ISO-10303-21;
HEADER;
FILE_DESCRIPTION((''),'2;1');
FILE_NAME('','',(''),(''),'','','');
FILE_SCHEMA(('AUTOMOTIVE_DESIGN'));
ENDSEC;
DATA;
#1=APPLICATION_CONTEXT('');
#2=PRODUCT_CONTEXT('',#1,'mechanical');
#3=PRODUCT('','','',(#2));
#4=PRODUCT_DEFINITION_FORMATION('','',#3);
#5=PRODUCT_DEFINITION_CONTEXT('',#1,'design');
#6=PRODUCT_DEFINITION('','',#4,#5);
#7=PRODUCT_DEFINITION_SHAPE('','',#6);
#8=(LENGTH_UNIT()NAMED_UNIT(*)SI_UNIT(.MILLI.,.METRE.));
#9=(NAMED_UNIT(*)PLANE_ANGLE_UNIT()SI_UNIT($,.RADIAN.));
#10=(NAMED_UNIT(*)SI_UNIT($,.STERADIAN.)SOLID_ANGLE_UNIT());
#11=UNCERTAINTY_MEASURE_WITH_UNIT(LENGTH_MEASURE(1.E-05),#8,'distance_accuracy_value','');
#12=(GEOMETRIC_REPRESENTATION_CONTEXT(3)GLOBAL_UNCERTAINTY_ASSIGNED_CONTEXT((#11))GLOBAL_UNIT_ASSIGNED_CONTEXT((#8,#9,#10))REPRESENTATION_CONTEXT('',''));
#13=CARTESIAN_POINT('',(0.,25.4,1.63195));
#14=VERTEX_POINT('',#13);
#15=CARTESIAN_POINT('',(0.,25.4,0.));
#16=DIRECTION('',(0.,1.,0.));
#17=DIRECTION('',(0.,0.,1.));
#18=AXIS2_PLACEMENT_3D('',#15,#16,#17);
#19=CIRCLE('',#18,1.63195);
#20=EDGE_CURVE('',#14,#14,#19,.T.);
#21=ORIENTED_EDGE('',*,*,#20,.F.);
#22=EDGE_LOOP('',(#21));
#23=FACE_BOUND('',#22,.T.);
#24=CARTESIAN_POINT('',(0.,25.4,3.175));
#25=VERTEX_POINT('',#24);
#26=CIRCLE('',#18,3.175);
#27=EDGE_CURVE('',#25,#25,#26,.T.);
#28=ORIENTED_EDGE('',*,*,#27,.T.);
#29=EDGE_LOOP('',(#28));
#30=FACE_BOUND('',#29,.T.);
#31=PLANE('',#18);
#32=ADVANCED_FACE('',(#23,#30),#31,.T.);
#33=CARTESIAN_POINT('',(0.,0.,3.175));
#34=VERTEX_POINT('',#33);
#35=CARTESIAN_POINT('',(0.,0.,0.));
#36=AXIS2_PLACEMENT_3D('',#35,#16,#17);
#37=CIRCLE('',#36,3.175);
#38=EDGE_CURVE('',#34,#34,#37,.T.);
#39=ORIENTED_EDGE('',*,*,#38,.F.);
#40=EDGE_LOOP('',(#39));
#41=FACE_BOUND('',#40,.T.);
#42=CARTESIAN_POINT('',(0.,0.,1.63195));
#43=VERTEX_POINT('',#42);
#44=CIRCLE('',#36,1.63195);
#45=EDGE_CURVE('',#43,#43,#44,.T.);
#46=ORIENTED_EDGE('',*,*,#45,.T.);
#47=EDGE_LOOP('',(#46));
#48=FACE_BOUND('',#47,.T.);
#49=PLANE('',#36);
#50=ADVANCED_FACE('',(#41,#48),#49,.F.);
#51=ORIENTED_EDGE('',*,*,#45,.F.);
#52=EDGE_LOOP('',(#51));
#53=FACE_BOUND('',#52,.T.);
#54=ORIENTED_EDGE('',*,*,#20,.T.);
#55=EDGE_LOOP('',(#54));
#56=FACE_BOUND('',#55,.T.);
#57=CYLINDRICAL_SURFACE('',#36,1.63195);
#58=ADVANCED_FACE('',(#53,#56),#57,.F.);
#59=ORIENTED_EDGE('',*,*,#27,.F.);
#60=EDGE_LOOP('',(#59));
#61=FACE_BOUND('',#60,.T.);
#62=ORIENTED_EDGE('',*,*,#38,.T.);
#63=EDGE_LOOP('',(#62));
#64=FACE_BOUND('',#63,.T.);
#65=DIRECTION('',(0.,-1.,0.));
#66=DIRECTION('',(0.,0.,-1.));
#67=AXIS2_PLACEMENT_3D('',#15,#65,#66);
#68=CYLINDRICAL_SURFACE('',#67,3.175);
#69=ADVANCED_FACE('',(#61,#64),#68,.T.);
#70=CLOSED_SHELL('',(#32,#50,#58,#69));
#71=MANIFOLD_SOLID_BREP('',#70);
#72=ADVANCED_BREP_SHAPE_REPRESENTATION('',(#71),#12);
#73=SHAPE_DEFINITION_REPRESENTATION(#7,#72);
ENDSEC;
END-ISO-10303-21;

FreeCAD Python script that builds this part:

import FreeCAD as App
import Part
import Sketcher

V = App.Vector
Q = App.Units.Quantity

doc = App.newDocument("Part")
params = doc.addObject("Spreadsheet::Sheet", "Params")
for row, (alias, value) in enumerate([
    ("sketch1_diameter", "0.25 in"),
    ("pad1_length", "1 in"),
], start=1):
    params.set(f"A{row}", alias)
    params.set(f"B{row}", "=" + value)
    params.setAlias(f"B{row}", alias)

body = doc.addObject("PartDesign::Body", "Body")

sketch1 = body.newObject("Sketcher::SketchObject", "Sketch")
sketch1.AttachmentSupport = (doc.getObject("XZ_Plane"), [""])
sketch1.MapMode = "FlatFace"
sketch1.addGeometry(Part.Circle(V(0, 0, 0), V(0, 0, 1), 3.2), False)
sketch1.addConstraint(Sketcher.Constraint("Coincident", 0, 3, -1, 1))
sketch1.addConstraint(Sketcher.Constraint("Diameter", 0, Q("0.25 in")))
sketch1.setExpression("Constraints[1]", "Params.sketch1_diameter")
pad1 = body.newObject("PartDesign::Pad", "Pad")
pad1.Profile = sketch1
pad1.setExpression("Length", "Params.pad1_length")
pad1.Reversed = True

sketch2 = body.newObject("Sketcher::SketchObject", "Sketch001")
sketch2.AttachmentSupport = (doc.getObject("XZ_Plane"), [""])
sketch2.MapMode = "FlatFace"
sketch2.AttachmentOffset = App.Placement(V(0, 0, -1 * 25.4), App.Rotation())
sketch2.addGeometry(Part.Circle(V(0, 0, 0), V(0, 0, 1), 1.6), False)
sketch2.addConstraint(Sketcher.Constraint("Coincident", 0, 3, -1, 1))
sketch2.addConstraint(Sketcher.Constraint("Diameter", 0, Q("0.1285 in")))
pocket1 = body.newObject("PartDesign::Pocket", "Pocket")
pocket1.Profile = sketch2
pocket1.Type = "ThroughAll"
pocket1.Reversed = True

doc.recompute()
